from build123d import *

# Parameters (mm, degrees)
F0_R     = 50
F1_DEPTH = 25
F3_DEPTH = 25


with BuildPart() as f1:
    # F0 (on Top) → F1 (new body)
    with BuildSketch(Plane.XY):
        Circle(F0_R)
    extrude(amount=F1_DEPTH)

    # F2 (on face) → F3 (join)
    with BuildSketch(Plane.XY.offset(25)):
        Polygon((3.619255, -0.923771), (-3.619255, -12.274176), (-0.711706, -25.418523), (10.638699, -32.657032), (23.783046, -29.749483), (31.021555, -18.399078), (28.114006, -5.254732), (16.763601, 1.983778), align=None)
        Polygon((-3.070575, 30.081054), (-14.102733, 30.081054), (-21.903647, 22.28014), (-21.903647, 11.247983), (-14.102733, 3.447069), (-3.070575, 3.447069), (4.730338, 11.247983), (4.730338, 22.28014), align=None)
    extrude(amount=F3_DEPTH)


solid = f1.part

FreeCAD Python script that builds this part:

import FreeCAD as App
import Part
import Sketcher
from FreeCAD import Vector
Q = App.Units.Quantity


def add_polygon(sketch, points):
    """Adds a closed chain of lines whose ends are joined by coincident constraints."""
    first, n = sketch.GeometryCount, len(points)
    for a, b in zip(points, points[1:] + points[:1]):
        sketch.addGeometry(Part.LineSegment(App.Vector(*a, 0), App.Vector(*b, 0)), False)
    for i in range(n):
        sketch.addConstraint(Sketcher.Constraint("Coincident", first + i, 2, first + (i + 1) % n, 1))

doc = App.newDocument("Part")
body = doc.addObject("PartDesign::Body", "Body")

# Sketch on XY plane
sketch1 = body.newObject("Sketcher::SketchObject", "Sketch")
sketch1.AttachmentSupport = (doc.getObject("XY_Plane"), [""])
sketch1.MapMode = "FlatFace"
sketch1.addGeometry(Part.Circle(Vector(0, 0, 0), Vector(0, 0, 1), 50), False)
sketch1.addConstraint([
    Sketcher.Constraint("Coincident", 0, 3, -1, 1),
    Sketcher.Constraint("Diameter", 0, Q("100 mm")),
])
pad1 = body.newObject("PartDesign::Pad", "Pad")
pad1.Profile = sketch1
pad1.Length = 25

# Sketch on XY plane
sketch2 = body.newObject("Sketcher::SketchObject", "Sketch001")
sketch2.AttachmentSupport = (doc.getObject("XY_Plane"), [""])
sketch2.MapMode = "FlatFace"
sketch2.AttachmentOffset = App.Placement(Vector(0, 0, 25), App.Rotation())
add_polygon(sketch2, [(4, -1), (-4, -12), (-1, -25), (11, -33), (24, -30), (31, -18), (28, -5), (17, 2)])  # lines 0-7
add_polygon(sketch2, [(-3, 30), (-14, 30), (-22, 22), (-22, 11), (-14, 3), (-3, 3), (5, 11), (5, 22)])  # lines 8-15
sketch2.addConstraint([
    Sketcher.Constraint("Horizontal", 8),
    Sketcher.Constraint("Vertical", 10),
    Sketcher.Constraint("Horizontal", 12),
    Sketcher.Constraint("Vertical", 14),
    Sketcher.Constraint("Perpendicular", 0, 2),
    Sketcher.Constraint("Perpendicular", 1, 3),
    Sketcher.Constraint("Perpendicular", 2, 4),
    Sketcher.Constraint("Perpendicular", 3, 5),
    Sketcher.Constraint("Perpendicular", 4, 6),
    Sketcher.Constraint("Perpendicular", 5, 7),
    Sketcher.Constraint("Perpendicular", 9, 11),
    Sketcher.Constraint("Perpendicular", 11, 13),
    Sketcher.Constraint("Perpendicular", 13, 15),
    Sketcher.Constraint("Horizontal", 10, 2, 13, 2),
    Sketcher.Constraint("Horizontal", 9, 2, 14, 2),
    Sketcher.Constraint("Vertical", 8, 2, 11, 2),
    Sketcher.Constraint("Vertical", 12, 2, 15, 2),
    Sketcher.Constraint("Equal", 12, 10),
    Sketcher.Constraint("Equal", 0, 1),
    Sketcher.Constraint("Equal", 1, 2),
    Sketcher.Constraint("Equal", 2, 3),
    Sketcher.Constraint("Equal", 3, 4),
    Sketcher.Constraint("Equal", 4, 5),
    Sketcher.Constraint("DistanceX", 8, 2, 8, 1, Q("11.032158 mm")),
    Sketcher.Constraint("DistanceX", -1, 1, 2, 2, Q("10.638699 mm")),
    Sketcher.Constraint("DistanceX", -1, 1, 6, 2, Q("16.763601 mm")),
    Sketcher.Constraint("DistanceX", 0, 2, 3, 2, Q("27.402301 mm")),
    Sketcher.Constraint("DistanceX", 9, 2, 7, 2, Q("25.522902 mm")),
    Sketcher.Constraint("Distance", 9, Q("11.032158 mm")),
    Sketcher.Constraint("DistanceY", 5, 2, -1, 1, Q("5.254732 mm")),
    Sketcher.Constraint("DistanceY", 7, 2, -1, 1, Q("0.923771 mm")),
    Sketcher.Constraint("DistanceY", -1, 1, 9, 2, Q("22.28014 mm")),
])
pad2 = body.newObject("PartDesign::Pad", "Pad001")
pad2.Profile = sketch2
pad2.Length = 25

doc.recompute()
